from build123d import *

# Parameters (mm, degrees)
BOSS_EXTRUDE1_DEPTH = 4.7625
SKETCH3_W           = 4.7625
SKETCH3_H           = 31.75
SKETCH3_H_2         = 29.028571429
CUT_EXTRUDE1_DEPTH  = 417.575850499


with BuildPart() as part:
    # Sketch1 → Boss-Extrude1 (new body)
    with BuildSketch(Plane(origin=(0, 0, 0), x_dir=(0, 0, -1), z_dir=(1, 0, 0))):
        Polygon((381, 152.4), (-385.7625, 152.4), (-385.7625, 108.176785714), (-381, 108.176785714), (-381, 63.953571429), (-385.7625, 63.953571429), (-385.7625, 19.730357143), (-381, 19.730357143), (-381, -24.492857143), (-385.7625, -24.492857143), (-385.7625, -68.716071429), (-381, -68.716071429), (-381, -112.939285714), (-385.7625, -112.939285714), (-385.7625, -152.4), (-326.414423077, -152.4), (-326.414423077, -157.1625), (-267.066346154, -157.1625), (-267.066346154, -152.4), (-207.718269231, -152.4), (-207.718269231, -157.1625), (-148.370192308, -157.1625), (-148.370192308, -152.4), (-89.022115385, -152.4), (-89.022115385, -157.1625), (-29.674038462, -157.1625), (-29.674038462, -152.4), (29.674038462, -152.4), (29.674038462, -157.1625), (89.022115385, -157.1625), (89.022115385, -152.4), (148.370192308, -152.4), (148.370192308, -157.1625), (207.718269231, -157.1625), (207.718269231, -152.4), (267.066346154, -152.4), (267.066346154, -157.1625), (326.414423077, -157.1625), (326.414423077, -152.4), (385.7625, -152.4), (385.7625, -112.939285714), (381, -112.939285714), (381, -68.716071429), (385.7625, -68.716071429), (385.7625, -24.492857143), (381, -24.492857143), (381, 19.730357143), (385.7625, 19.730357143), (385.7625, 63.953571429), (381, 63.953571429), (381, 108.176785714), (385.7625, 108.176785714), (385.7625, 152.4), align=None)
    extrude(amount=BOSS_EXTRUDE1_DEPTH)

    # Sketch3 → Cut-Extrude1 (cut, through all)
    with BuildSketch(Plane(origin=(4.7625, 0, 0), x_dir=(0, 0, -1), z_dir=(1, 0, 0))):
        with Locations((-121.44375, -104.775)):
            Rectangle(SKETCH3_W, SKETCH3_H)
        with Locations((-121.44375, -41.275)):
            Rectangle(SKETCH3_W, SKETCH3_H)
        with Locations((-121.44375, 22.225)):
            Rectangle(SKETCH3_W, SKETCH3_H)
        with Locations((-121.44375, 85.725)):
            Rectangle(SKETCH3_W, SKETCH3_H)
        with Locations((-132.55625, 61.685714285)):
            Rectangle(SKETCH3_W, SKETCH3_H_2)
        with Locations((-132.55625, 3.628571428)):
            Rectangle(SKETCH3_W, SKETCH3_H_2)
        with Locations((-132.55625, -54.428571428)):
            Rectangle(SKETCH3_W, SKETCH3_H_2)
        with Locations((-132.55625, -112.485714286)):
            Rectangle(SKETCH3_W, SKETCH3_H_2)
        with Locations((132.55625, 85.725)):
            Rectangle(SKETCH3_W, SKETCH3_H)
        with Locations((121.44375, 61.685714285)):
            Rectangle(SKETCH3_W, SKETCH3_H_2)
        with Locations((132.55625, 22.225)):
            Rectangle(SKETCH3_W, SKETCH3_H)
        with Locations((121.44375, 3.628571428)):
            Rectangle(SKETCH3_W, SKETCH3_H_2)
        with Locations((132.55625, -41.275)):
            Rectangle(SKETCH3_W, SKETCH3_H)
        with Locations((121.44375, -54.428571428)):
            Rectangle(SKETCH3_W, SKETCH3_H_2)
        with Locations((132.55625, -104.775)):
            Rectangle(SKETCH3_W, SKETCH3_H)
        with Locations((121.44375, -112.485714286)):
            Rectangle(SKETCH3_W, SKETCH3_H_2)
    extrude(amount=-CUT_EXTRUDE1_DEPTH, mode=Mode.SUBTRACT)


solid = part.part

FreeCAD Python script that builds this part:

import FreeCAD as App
import Part
import Sketcher
Q = App.Units.Quantity

doc = App.newDocument("Part")
body = doc.addObject("PartDesign::Body", "Body")

sketch1 = body.newObject("Sketcher::SketchObject", "Sketch")
sketch1.AttachmentSupport = (doc.getObject("YZ_Plane"), [""])
sketch1.MapMode = "FlatFace"
sketch1.addGeometry(Part.LineSegment(App.Vector(152.4, 385.8, 0), App.Vector(108.2, 385.8, 0)), False)
sketch1.addGeometry(Part.LineSegment(App.Vector(108.2, 385.8, 0), App.Vector(108.2, 381, 0)), False)
sketch1.addGeometry(Part.LineSegment(App.Vector(108.2, 381, 0), App.Vector(64, 381, 0)), False)
sketch1.addGeometry(Part.LineSegment(App.Vector(64, 381, 0), App.Vector(64, 385.8, 0)), False)
sketch1.addGeometry(Part.LineSegment(App.Vector(64, 385.8, 0), App.Vector(19.7, 385.8, 0)), False)
sketch1.addGeometry(Part.LineSegment(App.Vector(19.7, 385.8, 0), App.Vector(19.7, 381, 0)), False)
sketch1.addGeometry(Part.LineSegment(App.Vector(19.7, 381, 0), App.Vector(-24.5, 381, 0)), False)
sketch1.addGeometry(Part.LineSegment(App.Vector(-24.5, 381, 0), App.Vector(-24.5, 385.8, 0)), False)
sketch1.addGeometry(Part.LineSegment(App.Vector(-24.5, 385.8, 0), App.Vector(-68.7, 385.8, 0)), False)
sketch1.addGeometry(Part.LineSegment(App.Vector(-68.7, 385.8, 0), App.Vector(-68.7, 381, 0)), False)
sketch1.addGeometry(Part.LineSegment(App.Vector(-68.7, 381, 0), App.Vector(-112.9, 381, 0)), False)
sketch1.addGeometry(Part.LineSegment(App.Vector(-112.9, 381, 0), App.Vector(-112.9, 385.8, 0)), False)
sketch1.addGeometry(Part.LineSegment(App.Vector(-112.9, 385.8, 0), App.Vector(-152.4, 385.8, 0)), False)
sketch1.addGeometry(Part.LineSegment(App.Vector(-152.4, 385.8, 0), App.Vector(-152.4, 326.4, 0)), False)
sketch1.addGeometry(Part.LineSegment(App.Vector(-152.4, 326.4, 0), App.Vector(-157.2, 326.4, 0)), False)
sketch1.addGeometry(Part.LineSegment(App.Vector(-157.2, 326.4, 0), App.Vector(-157.2, 267.1, 0)), False)
sketch1.addGeometry(Part.LineSegment(App.Vector(-157.2, 267.1, 0), App.Vector(-152.4, 267.1, 0)), False)
sketch1.addGeometry(Part.LineSegment(App.Vector(-152.4, 267.1, 0), App.Vector(-152.4, 207.7, 0)), False)
sketch1.addGeometry(Part.LineSegment(App.Vector(-152.4, 207.7, 0), App.Vector(-157.2, 207.7, 0)), False)
sketch1.addGeometry(Part.LineSegment(App.Vector(-157.2, 207.7, 0), App.Vector(-157.2, 148.4, 0)), False)
sketch1.addGeometry(Part.LineSegment(App.Vector(-157.2, 148.4, 0), App.Vector(-152.4, 148.4, 0)), False)
sketch1.addGeometry(Part.LineSegment(App.Vector(-152.4, 148.4, 0), App.Vector(-152.4, 89, 0)), False)
sketch1.addGeometry(Part.LineSegment(App.Vector(-152.4, 89, 0), App.Vector(-157.2, 89, 0)), False)
sketch1.addGeometry(Part.LineSegment(App.Vector(-157.2, 89, 0), App.Vector(-157.2, 29.7, 0)), False)
sketch1.addGeometry(Part.LineSegment(App.Vector(-157.2, 29.7, 0), App.Vector(-152.4, 29.7, 0)), False)
sketch1.addGeometry(Part.LineSegment(App.Vector(-152.4, 29.7, 0), App.Vector(-152.4, -29.7, 0)), False)
sketch1.addGeometry(Part.LineSegment(App.Vector(-152.4, -29.7, 0), App.Vector(-157.2, -29.7, 0)), False)
sketch1.addGeometry(Part.LineSegment(App.Vector(-157.2, -29.7, 0), App.Vector(-157.2, -89, 0)), False)
sketch1.addGeometry(Part.LineSegment(App.Vector(-157.2, -89, 0), App.Vector(-152.4, -89, 0)), False)
sketch1.addGeometry(Part.LineSegment(App.Vector(-152.4, -89, 0), App.Vector(-152.4, -148.4, 0)), False)
sketch1.addGeometry(Part.LineSegment(App.Vector(-152.4, -148.4, 0), App.Vector(-157.2, -148.4, 0)), False)
sketch1.addGeometry(Part.LineSegment(App.Vector(-157.2, -148.4, 0), App.Vector(-157.2, -207.7, 0)), False)
sketch1.addGeometry(Part.LineSegment(App.Vector(-157.2, -207.7, 0), App.Vector(-152.4, -207.7, 0)), False)
sketch1.addGeometry(Part.LineSegment(App.Vector(-152.4, -207.7, 0), App.Vector(-152.4, -267.1, 0)), False)
sketch1.addGeometry(Part.LineSegment(App.Vector(-152.4, -267.1, 0), App.Vector(-157.2, -267.1, 0)), False)
sketch1.addGeometry(Part.LineSegment(App.Vector(-157.2, -267.1, 0), App.Vector(-157.2, -326.4, 0)), False)
sketch1.addGeometry(Part.LineSegment(App.Vector(-157.2, -326.4, 0), App.Vector(-152.4, -326.4, 0)), False)
sketch1.addGeometry(Part.LineSegment(App.Vector(-152.4, -326.4, 0), App.Vector(-152.4, -385.8, 0)), False)
sketch1.addGeometry(Part.LineSegment(App.Vector(-152.4, -385.8, 0), App.Vector(-112.9, -385.8, 0)), False)
sketch1.addGeometry(Part.LineSegment(App.Vector(-112.9, -385.8, 0), App.Vector(-112.9, -381, 0)), False)
sketch1.addGeometry(Part.LineSegment(App.Vector(-112.9, -381, 0), App.Vector(-68.7, -381, 0)), False)
sketch1.addGeometry(Part.LineSegment(App.Vector(-68.7, -381, 0), App.Vector(-68.7, -385.8, 0)), False)
sketch1.addGeometry(Part.LineSegment(App.Vector(-68.7, -385.8, 0), App.Vector(-24.5, -385.8, 0)), False)
sketch1.addGeometry(Part.LineSegment(App.Vector(-24.5, -385.8, 0), App.Vector(-24.5, -381, 0)), False)
sketch1.addGeometry(Part.LineSegment(App.Vector(-24.5, -381, 0), App.Vector(19.7, -381, 0)), False)
sketch1.addGeometry(Part.LineSegment(App.Vector(19.7, -381, 0), App.Vector(19.7, -385.8, 0)), False)
sketch1.addGeometry(Part.LineSegment(App.Vector(19.7, -385.8, 0), App.Vector(64, -385.8, 0)), False)
sketch1.addGeometry(Part.LineSegment(App.Vector(64, -385.8, 0), App.Vector(64, -381, 0)), False)
sketch1.addGeometry(Part.LineSegment(App.Vector(64, -381, 0), App.Vector(108.2, -381, 0)), False)
sketch1.addGeometry(Part.LineSegment(App.Vector(108.2, -381, 0), App.Vector(108.2, -385.8, 0)), False)
sketch1.addGeometry(Part.LineSegment(App.Vector(108.2, -385.8, 0), App.Vector(152.4, -385.8, 0)), False)
sketch1.addGeometry(Part.LineSegment(App.Vector(152.4, -385.8, 0), App.Vector(152.4, 385.8, 0)), False)
sketch1.addConstraint(Sketcher.Constraint("Coincident", 0, 2, 1, 1))
sketch1.addConstraint(Sketcher.Constraint("Coincident", 1, 2, 2, 1))
sketch1.addConstraint(Sketcher.Constraint("Coincident", 2, 2, 3, 1))
sketch1.addConstraint(Sketcher.Constraint("Coincident", 3, 2, 4, 1))
sketch1.addConstraint(Sketcher.Constraint("Coincident", 4, 2, 5, 1))
sketch1.addConstraint(Sketcher.Constraint("Coincident", 5, 2, 6, 1))
sketch1.addConstraint(Sketcher.Constraint("Coincident", 6, 2, 7, 1))
sketch1.addConstraint(Sketcher.Constraint("Coincident", 7, 2, 8, 1))
sketch1.addConstraint(Sketcher.Constraint("Coincident", 8, 2, 9, 1))
sketch1.addConstraint(Sketcher.Constraint("Coincident", 9, 2, 10, 1))
sketch1.addConstraint(Sketcher.Constraint("Coincident", 10, 2, 11, 1))
sketch1.addConstraint(Sketcher.Constraint("Coincident", 11, 2, 12, 1))
sketch1.addConstraint(Sketcher.Constraint("Coincident", 12, 2, 13, 1))
sketch1.addConstraint(Sketcher.Constraint("Coincident", 13, 2, 14, 1))
sketch1.addConstraint(Sketcher.Constraint("Coincident", 14, 2, 15, 1))
sketch1.addConstraint(Sketcher.Constraint("Coincident", 15, 2, 16, 1))
sketch1.addConstraint(Sketcher.Constraint("Coincident", 16, 2, 17, 1))
sketch1.addConstraint(Sketcher.Constraint("Coincident", 17, 2, 18, 1))
sketch1.addConstraint(Sketcher.Constraint("Coincident", 18, 2, 19, 1))
sketch1.addConstraint(Sketcher.Constraint("Coincident", 19, 2, 20, 1))
sketch1.addConstraint(Sketcher.Constraint("Coincident", 20, 2, 21, 1))
sketch1.addConstraint(Sketcher.Constraint("Coincident", 21, 2, 22, 1))
sketch1.addConstraint(Sketcher.Constraint("Coincident", 22, 2, 23, 1))
sketch1.addConstraint(Sketcher.Constraint("Coincident", 23, 2, 24, 1))
sketch1.addConstraint(Sketcher.Constraint("Coincident", 24, 2, 25, 1))
sketch1.addConstraint(Sketcher.Constraint("Coincident", 25, 2, 26, 1))
sketch1.addConstraint(Sketcher.Constraint("Coincident", 26, 2, 27, 1))
sketch1.addConstraint(Sketcher.Constraint("Coincident", 27, 2, 28, 1))
sketch1.addConstraint(Sketcher.Constraint("Coincident", 28, 2, 29, 1))
sketch1.addConstraint(Sketcher.Constraint("Coincident", 29, 2, 30, 1))
sketch1.addConstraint(Sketcher.Constraint("Coincident", 30, 2, 31, 1))
sketch1.addConstraint(Sketcher.Constraint("Coincident", 31, 2, 32, 1))
sketch1.addConstraint(Sketcher.Constraint("Coincident", 32, 2, 33, 1))
sketch1.addConstraint(Sketcher.Constraint("Coincident", 33, 2, 34, 1))
sketch1.addConstraint(Sketcher.Constraint("Coincident", 34, 2, 35, 1))
sketch1.addConstraint(Sketcher.Constraint("Coincident", 35, 2, 36, 1))
sketch1.addConstraint(Sketcher.Constraint("Coincident", 36, 2, 37, 1))
sketch1.addConstraint(Sketcher.Constraint("Coincident", 37, 2, 38, 1))
sketch1.addConstraint(Sketcher.Constraint("Coincident", 38, 2, 39, 1))
sketch1.addConstraint(Sketcher.Constraint("Coincident", 39, 2, 40, 1))
sketch1.addConstraint(Sketcher.Constraint("Coincident", 40, 2, 41, 1))
sketch1.addConstraint(Sketcher.Constraint("Coincident", 41, 2, 42, 1))
sketch1.addConstraint(Sketcher.Constraint("Coincident", 42, 2, 43, 1))
sketch1.addConstraint(Sketcher.Constraint("Coincident", 43, 2, 44, 1))
sketch1.addConstraint(Sketcher.Constraint("Coincident", 44, 2, 45, 1))
sketch1.addConstraint(Sketcher.Constraint("Coincident", 45, 2, 46, 1))
sketch1.addConstraint(Sketcher.Constraint("Coincident", 46, 2, 47, 1))
sketch1.addConstraint(Sketcher.Constraint("Coincident", 47, 2, 48, 1))
sketch1.addConstraint(Sketcher.Constraint("Coincident", 48, 2, 49, 1))
sketch1.addConstraint(Sketcher.Constraint("Coincident", 49, 2, 50, 1))
sketch1.addConstraint(Sketcher.Constraint("Coincident", 50, 2, 51, 1))
sketch1.addConstraint(Sketcher.Constraint("Coincident", 51, 2, 0, 1))
sketch1.addConstraint(Sketcher.Constraint("Horizontal", 0))
sketch1.addConstraint(Sketcher.Constraint("Vertical", 1))
sketch1.addConstraint(Sketcher.Constraint("Horizontal", 2))
sketch1.addConstraint(Sketcher.Constraint("Vertical", 3))
sketch1.addConstraint(Sketcher.Constraint("Horizontal", 4))
sketch1.addConstraint(Sketcher.Constraint("Vertical", 5))
sketch1.addConstraint(Sketcher.Constraint("Horizontal", 6))
sketch1.addConstraint(Sketcher.Constraint("Vertical", 7))
sketch1.addConstraint(Sketcher.Constraint("Horizontal", 8))
sketch1.addConstraint(Sketcher.Constraint("Vertical", 9))
sketch1.addConstraint(Sketcher.Constraint("Horizontal", 10))
sketch1.addConstraint(Sketcher.Constraint("Vertical", 11))
sketch1.addConstraint(Sketcher.Constraint("Horizontal", 12))
sketch1.addConstraint(Sketcher.Constraint("Vertical", 13))
sketch1.addConstraint(Sketcher.Constraint("Horizontal", 14))
sketch1.addConstraint(Sketcher.Constraint("Vertical", 15))
sketch1.addConstraint(Sketcher.Constraint("Horizontal", 16))
sketch1.addConstraint(Sketcher.Constraint("Vertical", 17))
sketch1.addConstraint(Sketcher.Constraint("Horizontal", 18))
sketch1.addConstraint(Sketcher.Constraint("Vertical", 19))
sketch1.addConstraint(Sketcher.Constraint("Horizontal", 20))
sketch1.addConstraint(Sketcher.Constraint("Vertical", 21))
sketch1.addConstraint(Sketcher.Constraint("Horizontal", 22))
sketch1.addConstraint(Sketcher.Constraint("Vertical", 23))
sketch1.addConstraint(Sketcher.Constraint("Horizontal", 24))
sketch1.addConstraint(Sketcher.Constraint("Vertical", 25))
sketch1.addConstraint(Sketcher.Constraint("Horizontal", 26))
sketch1.addConstraint(Sketcher.Constraint("Vertical", 27))
sketch1.addConstraint(Sketcher.Constraint("Horizontal", 28))
sketch1.addConstraint(Sketcher.Constraint("Vertical", 29))
sketch1.addConstraint(Sketcher.Constraint("Horizontal", 30))
sketch1.addConstraint(Sketcher.Constraint("Vertical", 31))
sketch1.addConstraint(Sketcher.Constraint("Horizontal", 32))
sketch1.addConstraint(Sketcher.Constraint("Vertical", 33))
sketch1.addConstraint(Sketcher.Constraint("Horizontal", 34))
sketch1.addConstraint(Sketcher.Constraint("Vertical", 35))
sketch1.addConstraint(Sketcher.Constraint("Horizontal", 36))
sketch1.addConstraint(Sketcher.Constraint("Vertical", 37))
sketch1.addConstraint(Sketcher.Constraint("Horizontal", 38))
sketch1.addConstraint(Sketcher.Constraint("Vertical", 39))
sketch1.addConstraint(Sketcher.Constraint("Horizontal", 40))
sketch1.addConstraint(Sketcher.Constraint("Vertical", 41))
sketch1.addConstraint(Sketcher.Constraint("Horizontal", 42))
sketch1.addConstraint(Sketcher.Constraint("Vertical", 43))
sketch1.addConstraint(Sketcher.Constraint("Horizontal", 44))
sketch1.addConstraint(Sketcher.Constraint("Vertical", 45))
sketch1.addConstraint(Sketcher.Constraint("Horizontal", 46))
sketch1.addConstraint(Sketcher.Constraint("Vertical", 47))
sketch1.addConstraint(Sketcher.Constraint("Horizontal", 48))
sketch1.addConstraint(Sketcher.Constraint("Vertical", 49))
sketch1.addConstraint(Sketcher.Constraint("Horizontal", 50))
sketch1.addConstraint(Sketcher.Constraint("Vertical", 51))
sketch1.addConstraint(Sketcher.Constraint("Symmetric", 12, 2, 50, 2, -1, 1))
sketch1.addConstraint(Sketcher.Constraint("Symmetric", 37, 2, 51, 2, -1, 1))
sketch1.addConstraint(Sketcher.Constraint("Symmetric", 23, 2, 26, 2, -1))
sketch1.addConstraint(Sketcher.Constraint("Symmetric", 21, 2, 28, 2, -1))
sketch1.addConstraint(Sketcher.Constraint("Symmetric", 19, 2, 30, 2, -1))
sketch1.addConstraint(Sketcher.Constraint("Symmetric", 17, 2, 32, 2, -1))
sketch1.addConstraint(Sketcher.Constraint("Symmetric", 15, 2, 34, 2, -1))
sketch1.addConstraint(Sketcher.Constraint("Symmetric", 11, 2, 38, 2, -1))
sketch1.addConstraint(Sketcher.Constraint("Symmetric", 9, 2, 40, 2, -1))
sketch1.addConstraint(Sketcher.Constraint("Symmetric", 7, 2, 42, 2, -1))
sketch1.addConstraint(Sketcher.Constraint("Symmetric", 5, 2, 44, 2, -1))
sketch1.addConstraint(Sketcher.Constraint("Symmetric", 3, 2, 46, 2, -1))
sketch1.addConstraint(Sketcher.Constraint("Symmetric", 1, 2, 48, 2, -1))
sketch1.addConstraint(Sketcher.Constraint("Horizontal", 0, 2, 3, 2))
sketch1.addConstraint(Sketcher.Constraint("Horizontal", 2, 2, 5, 2))
sketch1.addConstraint(Sketcher.Constraint("Horizontal", 4, 2, 7, 2))
sketch1.addConstraint(Sketcher.Constraint("Horizontal", 6, 2, 9, 2))
sketch1.addConstraint(Sketcher.Constraint("Vertical", 13, 2, 16, 2))
sketch1.addConstraint(Sketcher.Constraint("Vertical", 15, 2, 18, 2))
sketch1.addConstraint(Sketcher.Constraint("Vertical", 17, 2, 20, 2))
sketch1.addConstraint(Sketcher.Constraint("Vertical", 19, 2, 22, 2))
sketch1.addConstraint(Sketcher.Constraint("Vertical", 21, 2, 24, 2))
sketch1.addConstraint(Sketcher.Constraint("Equal", 0, 2))
sketch1.addConstraint(Sketcher.Constraint("Equal", 2, 4))
sketch1.addConstraint(Sketcher.Constraint("Equal", 4, 6))
sketch1.addConstraint(Sketcher.Constraint("Equal", 6, 8))
sketch1.addConstraint(Sketcher.Constraint("Equal", 8, 10))
sketch1.addConstraint(Sketcher.Constraint("Equal", 36, 1))
sketch1.addConstraint(Sketcher.Constraint("Equal", 13, 15))
sketch1.addConstraint(Sketcher.Constraint("Equal", 15, 17))
sketch1.addConstraint(Sketcher.Constraint("Equal", 17, 19))
sketch1.addConstraint(Sketcher.Constraint("Equal", 19, 21))
sketch1.addConstraint(Sketcher.Constraint("Equal", 21, 23))
sketch1.addConstraint(Sketcher.Constraint("Equal", 23, 25))
sketch1.addConstraint(Sketcher.Constraint("Equal", 33, 35))
sketch1.addConstraint(Sketcher.Constraint("DistanceY", -1, 1, 1, 2, Q("15 in")))
sketch1.addConstraint(Sketcher.Constraint("DistanceX", 12, 2, -1, 1, Q("6 in")))
sketch1.addConstraint(Sketcher.Constraint("DistanceX", 14, 2, 14, 1, Q("0.1875 in")))
sketch1.addConstraint(Sketcher.Constraint("DistanceX", 0, 2, 0, 1, Q("44.223214 mm")))
pad1 = body.newObject("PartDesign::Pad", "Pad")
pad1.Profile = sketch1
pad1.Length = Q("0.1875 in")

sketch2 = body.newObject("Sketcher::SketchObject", "Sketch001")
sketch2.AttachmentSupport = (doc.getObject("YZ_Plane"), [""])
sketch2.MapMode = "FlatFace"
sketch2.AttachmentOffset = App.Placement(App.Vector(0, 0, 0.1875 * 25.4), App.Rotation())
sketch2.addGeometry(Part.LineSegment(App.Vector(-88.9, 123.8, 0), App.Vector(-120.7, 123.8, 0)), False)
sketch2.addGeometry(Part.LineSegment(App.Vector(-120.7, 123.8, 0), App.Vector(-120.7, 119.1, 0)), False)
sketch2.addGeometry(Part.LineSegment(App.Vector(-120.7, 119.1, 0), App.Vector(-88.9, 119.1, 0)), False)
sketch2.addGeometry(Part.LineSegment(App.Vector(-88.9, 119.1, 0), App.Vector(-88.9, 123.8, 0)), False)
sketch2.addGeometry(Part.LineSegment(App.Vector(-25.4, 123.8, 0), App.Vector(-57.1, 123.8, 0)), False)
sketch2.addGeometry(Part.LineSegment(App.Vector(-57.1, 123.8, 0), App.Vector(-57.1, 119.1, 0)), False)
sketch2.addGeometry(Part.LineSegment(App.Vector(-57.1, 119.1, 0), App.Vector(-25.4, 119.1, 0)), False)
sketch2.addGeometry(Part.LineSegment(App.Vector(-25.4, 119.1, 0), App.Vector(-25.4, 123.8, 0)), False)
sketch2.addGeometry(Part.LineSegment(App.Vector(38.1, 123.8, 0), App.Vector(6.3, 123.8, 0)), False)
sketch2.addGeometry(Part.LineSegment(App.Vector(6.3, 123.8, 0), App.Vector(6.3, 119.1, 0)), False)
sketch2.addGeometry(Part.LineSegment(App.Vector(6.3, 119.1, 0), App.Vector(38.1, 119.1, 0)), False)
sketch2.addGeometry(Part.LineSegment(App.Vector(38.1, 119.1, 0), App.Vector(38.1, 123.8, 0)), False)
sketch2.addGeometry(Part.LineSegment(App.Vector(101.6, 123.8, 0), App.Vector(69.8, 123.8, 0)), False)
sketch2.addGeometry(Part.LineSegment(App.Vector(69.8, 123.8, 0), App.Vector(69.8, 119.1, 0)), False)
sketch2.addGeometry(Part.LineSegment(App.Vector(69.8, 119.1, 0), App.Vector(101.6, 119.1, 0)), False)
sketch2.addGeometry(Part.LineSegment(App.Vector(101.6, 119.1, 0), App.Vector(101.6, 123.8, 0)), False)
sketch2.addGeometry(Part.LineSegment(App.Vector(76.2, 134.9, 0), App.Vector(47.2, 134.9, 0)), False)
sketch2.addGeometry(Part.LineSegment(App.Vector(47.2, 134.9, 0), App.Vector(47.2, 130.2, 0)), False)
sketch2.addGeometry(Part.LineSegment(App.Vector(47.2, 130.2, 0), App.Vector(76.2, 130.2, 0)), False)
sketch2.addGeometry(Part.LineSegment(App.Vector(76.2, 130.2, 0), App.Vector(76.2, 134.9, 0)), False)
sketch2.addGeometry(Part.LineSegment(App.Vector(18.1, 134.9, 0), App.Vector(-10.9, 134.9, 0)), False)
sketch2.addGeometry(Part.LineSegment(App.Vector(-10.9, 134.9, 0), App.Vector(-10.9, 130.2, 0)), False)
sketch2.addGeometry(Part.LineSegment(App.Vector(-10.9, 130.2, 0), App.Vector(18.1, 130.2, 0)), False)
sketch2.addGeometry(Part.LineSegment(App.Vector(18.1, 130.2, 0), App.Vector(18.1, 134.9, 0)), False)
sketch2.addGeometry(Part.LineSegment(App.Vector(-39.9, 134.9, 0), App.Vector(-68.9, 134.9, 0)), False)
sketch2.addGeometry(Part.LineSegment(App.Vector(-68.9, 134.9, 0), App.Vector(-68.9, 130.2, 0)), False)
sketch2.addGeometry(Part.LineSegment(App.Vector(-68.9, 130.2, 0), App.Vector(-39.9, 130.2, 0)), False)
sketch2.addGeometry(Part.LineSegment(App.Vector(-39.9, 130.2, 0), App.Vector(-39.9, 134.9, 0)), False)
sketch2.addGeometry(Part.LineSegment(App.Vector(-98, 134.9, 0), App.Vector(-127, 134.9, 0)), False)
sketch2.addGeometry(Part.LineSegment(App.Vector(-127, 134.9, 0), App.Vector(-127, 130.2, 0)), False)
sketch2.addGeometry(Part.LineSegment(App.Vector(-127, 130.2, 0), App.Vector(-98, 130.2, 0)), False)
sketch2.addGeometry(Part.LineSegment(App.Vector(-98, 130.2, 0), App.Vector(-98, 134.9, 0)), False)
sketch2.addGeometry(Part.LineSegment(App.Vector(101.6, -130.2, 0), App.Vector(69.8, -130.2, 0)), False)
sketch2.addGeometry(Part.LineSegment(App.Vector(69.8, -130.2, 0), App.Vector(69.8, -134.9, 0)), False)
sketch2.addGeometry(Part.LineSegment(App.Vector(69.8, -134.9, 0), App.Vector(101.6, -134.9, 0)), False)
sketch2.addGeometry(Part.LineSegment(App.Vector(101.6, -134.9, 0), App.Vector(101.6, -130.2, 0)), False)
sketch2.addGeometry(Part.LineSegment(App.Vector(76.2, -119.1, 0), App.Vector(47.2, -119.1, 0)), False)
sketch2.addGeometry(Part.LineSegment(App.Vector(47.2, -119.1, 0), App.Vector(47.2, -123.8, 0)), False)
sketch2.addGeometry(Part.LineSegment(App.Vector(47.2, -123.8, 0), App.Vector(76.2, -123.8, 0)), False)
sketch2.addGeometry(Part.LineSegment(App.Vector(76.2, -123.8, 0), App.Vector(76.2, -119.1, 0)), False)
sketch2.addGeometry(Part.LineSegment(App.Vector(38.1, -130.2, 0), App.Vector(6.3, -130.2, 0)), False)
sketch2.addGeometry(Part.LineSegment(App.Vector(6.3, -130.2, 0), App.Vector(6.3, -134.9, 0)), False)
sketch2.addGeometry(Part.LineSegment(App.Vector(6.3, -134.9, 0), App.Vector(38.1, -134.9, 0)), False)
sketch2.addGeometry(Part.LineSegment(App.Vector(38.1, -134.9, 0), App.Vector(38.1, -130.2, 0)), False)
sketch2.addGeometry(Part.LineSegment(App.Vector(18.1, -119.1, 0), App.Vector(-10.9, -119.1, 0)), False)
sketch2.addGeometry(Part.LineSegment(App.Vector(-10.9, -119.1, 0), App.Vector(-10.9, -123.8, 0)), False)
sketch2.addGeometry(Part.LineSegment(App.Vector(-10.9, -123.8, 0), App.Vector(18.1, -123.8, 0)), False)
sketch2.addGeometry(Part.LineSegment(App.Vector(18.1, -123.8, 0), App.Vector(18.1, -119.1, 0)), False)
sketch2.addGeometry(Part.LineSegment(App.Vector(-25.4, -130.2, 0), App.Vector(-57.1, -130.2, 0)), False)
sketch2.addGeometry(Part.LineSegment(App.Vector(-57.1, -130.2, 0), App.Vector(-57.1, -134.9, 0)), False)
sketch2.addGeometry(Part.LineSegment(App.Vector(-57.1, -134.9, 0), App.Vector(-25.4, -134.9, 0)), False)
sketch2.addGeometry(Part.LineSegment(App.Vector(-25.4, -134.9, 0), App.Vector(-25.4, -130.2, 0)), False)
sketch2.addGeometry(Part.LineSegment(App.Vector(-39.9, -119.1, 0), App.Vector(-68.9, -119.1, 0)), False)
sketch2.addGeometry(Part.LineSegment(App.Vector(-68.9, -119.1, 0), App.Vector(-68.9, -123.8, 0)), False)
sketch2.addGeometry(Part.LineSegment(App.Vector(-68.9, -123.8, 0), App.Vector(-39.9, -123.8, 0)), False)
sketch2.addGeometry(Part.LineSegment(App.Vector(-39.9, -123.8, 0), App.Vector(-39.9, -119.1, 0)), False)
sketch2.addGeometry(Part.LineSegment(App.Vector(-88.9, -130.2, 0), App.Vector(-120.7, -130.2, 0)), False)
sketch2.addGeometry(Part.LineSegment(App.Vector(-120.7, -130.2, 0), App.Vector(-120.7, -134.9, 0)), False)
sketch2.addGeometry(Part.LineSegment(App.Vector(-120.7, -134.9, 0), App.Vector(-88.9, -134.9, 0)), False)
sketch2.addGeometry(Part.LineSegment(App.Vector(-88.9, -134.9, 0), App.Vector(-88.9, -130.2, 0)), False)
sketch2.addGeometry(Part.LineSegment(App.Vector(-98, -119.1, 0), App.Vector(-127, -119.1, 0)), False)
sketch2.addGeometry(Part.LineSegment(App.Vector(-127, -119.1, 0), App.Vector(-127, -123.8, 0)), False)
sketch2.addGeometry(Part.LineSegment(App.Vector(-127, -123.8, 0), App.Vector(-98, -123.8, 0)), False)
sketch2.addGeometry(Part.LineSegment(App.Vector(-98, -123.8, 0), App.Vector(-98, -119.1, 0)), False)
sketch2.addConstraint(Sketcher.Constraint("Coincident", 0, 2, 1, 1))
sketch2.addConstraint(Sketcher.Constraint("Coincident", 1, 2, 2, 1))
sketch2.addConstraint(Sketcher.Constraint("Coincident", 2, 2, 3, 1))
sketch2.addConstraint(Sketcher.Constraint("Coincident", 3, 2, 0, 1))
sketch2.addConstraint(Sketcher.Constraint("Coincident", 4, 2, 5, 1))
sketch2.addConstraint(Sketcher.Constraint("Coincident", 5, 2, 6, 1))
sketch2.addConstraint(Sketcher.Constraint("Coincident", 6, 2, 7, 1))
sketch2.addConstraint(Sketcher.Constraint("Coincident", 7, 2, 4, 1))
sketch2.addConstraint(Sketcher.Constraint("Coincident", 8, 2, 9, 1))
sketch2.addConstraint(Sketcher.Constraint("Coincident", 9, 2, 10, 1))
sketch2.addConstraint(Sketcher.Constraint("Coincident", 10, 2, 11, 1))
sketch2.addConstraint(Sketcher.Constraint("Coincident", 11, 2, 8, 1))
sketch2.addConstraint(Sketcher.Constraint("Coincident", 12, 2, 13, 1))
sketch2.addConstraint(Sketcher.Constraint("Coincident", 13, 2, 14, 1))
sketch2.addConstraint(Sketcher.Constraint("Coincident", 14, 2, 15, 1))
sketch2.addConstraint(Sketcher.Constraint("Coincident", 15, 2, 12, 1))
sketch2.addConstraint(Sketcher.Constraint("Coincident", 16, 2, 17, 1))
sketch2.addConstraint(Sketcher.Constraint("Coincident", 17, 2, 18, 1))
sketch2.addConstraint(Sketcher.Constraint("Coincident", 18, 2, 19, 1))
sketch2.addConstraint(Sketcher.Constraint("Coincident", 19, 2, 16, 1))
sketch2.addConstraint(Sketcher.Constraint("Coincident", 20, 2, 21, 1))
sketch2.addConstraint(Sketcher.Constraint("Coincident", 21, 2, 22, 1))
sketch2.addConstraint(Sketcher.Constraint("Coincident", 22, 2, 23, 1))
sketch2.addConstraint(Sketcher.Constraint("Coincident", 23, 2, 20, 1))
sketch2.addConstraint(Sketcher.Constraint("Coincident", 24, 2, 25, 1))
sketch2.addConstraint(Sketcher.Constraint("Coincident", 25, 2, 26, 1))
sketch2.addConstraint(Sketcher.Constraint("Coincident", 26, 2, 27, 1))
sketch2.addConstraint(Sketcher.Constraint("Coincident", 27, 2, 24, 1))
sketch2.addConstraint(Sketcher.Constraint("Coincident", 28, 2, 29, 1))
sketch2.addConstraint(Sketcher.Constraint("Coincident", 29, 2, 30, 1))
sketch2.addConstraint(Sketcher.Constraint("Coincident", 30, 2, 31, 1))
sketch2.addConstraint(Sketcher.Constraint("Coincident", 31, 2, 28, 1))
sketch2.addConstraint(Sketcher.Constraint("Coincident", 32, 2, 33, 1))
sketch2.addConstraint(Sketcher.Constraint("Coincident", 33, 2, 34, 1))
sketch2.addConstraint(Sketcher.Constraint("Coincident", 34, 2, 35, 1))
sketch2.addConstraint(Sketcher.Constraint("Coincident", 35, 2, 32, 1))
sketch2.addConstraint(Sketcher.Constraint("Coincident", 36, 2, 37, 1))
sketch2.addConstraint(Sketcher.Constraint("Coincident", 37, 2, 38, 1))
sketch2.addConstraint(Sketcher.Constraint("Coincident", 38, 2, 39, 1))
sketch2.addConstraint(Sketcher.Constraint("Coincident", 39, 2, 36, 1))
sketch2.addConstraint(Sketcher.Constraint("Coincident", 40, 2, 41, 1))
sketch2.addConstraint(Sketcher.Constraint("Coincident", 41, 2, 42, 1))
sketch2.addConstraint(Sketcher.Constraint("Coincident", 42, 2, 43, 1))
sketch2.addConstraint(Sketcher.Constraint("Coincident", 43, 2, 40, 1))
sketch2.addConstraint(Sketcher.Constraint("Coincident", 44, 2, 45, 1))
sketch2.addConstraint(Sketcher.Constraint("Coincident", 45, 2, 46, 1))
sketch2.addConstraint(Sketcher.Constraint("Coincident", 46, 2, 47, 1))
sketch2.addConstraint(Sketcher.Constraint("Coincident", 47, 2, 44, 1))
sketch2.addConstraint(Sketcher.Constraint("Coincident", 48, 2, 49, 1))
sketch2.addConstraint(Sketcher.Constraint("Coincident", 49, 2, 50, 1))
sketch2.addConstraint(Sketcher.Constraint("Coincident", 50, 2, 51, 1))
sketch2.addConstraint(Sketcher.Constraint("Coincident", 51, 2, 48, 1))
sketch2.addConstraint(Sketcher.Constraint("Coincident", 52, 2, 53, 1))
sketch2.addConstraint(Sketcher.Constraint("Coincident", 53, 2, 54, 1))
sketch2.addConstraint(Sketcher.Constraint("Coincident", 54, 2, 55, 1))
sketch2.addConstraint(Sketcher.Constraint("Coincident", 55, 2, 52, 1))
sketch2.addConstraint(Sketcher.Constraint("Coincident", 56, 2, 57, 1))
sketch2.addConstraint(Sketcher.Constraint("Coincident", 57, 2, 58, 1))
sketch2.addConstraint(Sketcher.Constraint("Coincident", 58, 2, 59, 1))
sketch2.addConstraint(Sketcher.Constraint("Coincident", 59, 2, 56, 1))
sketch2.addConstraint(Sketcher.Constraint("Coincident", 60, 2, 61, 1))
sketch2.addConstraint(Sketcher.Constraint("Coincident", 61, 2, 62, 1))
sketch2.addConstraint(Sketcher.Constraint("Coincident", 62, 2, 63, 1))
sketch2.addConstraint(Sketcher.Constraint("Coincident", 63, 2, 60, 1))
sketch2.addConstraint(Sketcher.Constraint("Horizontal", 0))
sketch2.addConstraint(Sketcher.Constraint("Vertical", 1))
sketch2.addConstraint(Sketcher.Constraint("Horizontal", 2))
sketch2.addConstraint(Sketcher.Constraint("Vertical", 3))
sketch2.addConstraint(Sketcher.Constraint("Horizontal", 4))
sketch2.addConstraint(Sketcher.Constraint("Vertical", 5))
sketch2.addConstraint(Sketcher.Constraint("Horizontal", 6))
sketch2.addConstraint(Sketcher.Constraint("Vertical", 7))
sketch2.addConstraint(Sketcher.Constraint("Horizontal", 8))
sketch2.addConstraint(Sketcher.Constraint("Vertical", 9))
sketch2.addConstraint(Sketcher.Constraint("Horizontal", 10))
sketch2.addConstraint(Sketcher.Constraint("Vertical", 11))
sketch2.addConstraint(Sketcher.Constraint("Horizontal", 12))
sketch2.addConstraint(Sketcher.Constraint("Vertical", 13))
sketch2.addConstraint(Sketcher.Constraint("Horizontal", 14))
sketch2.addConstraint(Sketcher.Constraint("Vertical", 15))
sketch2.addConstraint(Sketcher.Constraint("Horizontal", 16))
sketch2.addConstraint(Sketcher.Constraint("Vertical", 17))
sketch2.addConstraint(Sketcher.Constraint("Horizontal", 18))
sketch2.addConstraint(Sketcher.Constraint("Vertical", 19))
sketch2.addConstraint(Sketcher.Constraint("Horizontal", 20))
sketch2.addConstraint(Sketcher.Constraint("Vertical", 21))
sketch2.addConstraint(Sketcher.Constraint("Horizontal", 22))
sketch2.addConstraint(Sketcher.Constraint("Vertical", 23))
sketch2.addConstraint(Sketcher.Constraint("Horizontal", 24))
sketch2.addConstraint(Sketcher.Constraint("Vertical", 25))
sketch2.addConstraint(Sketcher.Constraint("Horizontal", 26))
sketch2.addConstraint(Sketcher.Constraint("Vertical", 27))
sketch2.addConstraint(Sketcher.Constraint("Horizontal", 28))
sketch2.addConstraint(Sketcher.Constraint("Vertical", 29))
sketch2.addConstraint(Sketcher.Constraint("Horizontal", 30))
sketch2.addConstraint(Sketcher.Constraint("Vertical", 31))
sketch2.addConstraint(Sketcher.Constraint("Horizontal", 32))
sketch2.addConstraint(Sketcher.Constraint("Vertical", 33))
sketch2.addConstraint(Sketcher.Constraint("Horizontal", 34))
sketch2.addConstraint(Sketcher.Constraint("Vertical", 35))
sketch2.addConstraint(Sketcher.Constraint("Horizontal", 36))
sketch2.addConstraint(Sketcher.Constraint("Vertical", 37))
sketch2.addConstraint(Sketcher.Constraint("Horizontal", 38))
sketch2.addConstraint(Sketcher.Constraint("Vertical", 39))
sketch2.addConstraint(Sketcher.Constraint("Horizontal", 40))
sketch2.addConstraint(Sketcher.Constraint("Vertical", 41))
sketch2.addConstraint(Sketcher.Constraint("Horizontal", 42))
sketch2.addConstraint(Sketcher.Constraint("Vertical", 43))
sketch2.addConstraint(Sketcher.Constraint("Horizontal", 44))
sketch2.addConstraint(Sketcher.Constraint("Vertical", 45))
sketch2.addConstraint(Sketcher.Constraint("Horizontal", 46))
sketch2.addConstraint(Sketcher.Constraint("Vertical", 47))
sketch2.addConstraint(Sketcher.Constraint("Horizontal", 48))
sketch2.addConstraint(Sketcher.Constraint("Vertical", 49))
sketch2.addConstraint(Sketcher.Constraint("Horizontal", 50))
sketch2.addConstraint(Sketcher.Constraint("Vertical", 51))
sketch2.addConstraint(Sketcher.Constraint("Horizontal", 52))
sketch2.addConstraint(Sketcher.Constraint("Vertical", 53))
sketch2.addConstraint(Sketcher.Constraint("Horizontal", 54))
sketch2.addConstraint(Sketcher.Constraint("Vertical", 55))
sketch2.addConstraint(Sketcher.Constraint("Horizontal", 56))
sketch2.addConstraint(Sketcher.Constraint("Vertical", 57))
sketch2.addConstraint(Sketcher.Constraint("Horizontal", 58))
sketch2.addConstraint(Sketcher.Constraint("Vertical", 59))
sketch2.addConstraint(Sketcher.Constraint("Horizontal", 60))
sketch2.addConstraint(Sketcher.Constraint("Vertical", 61))
sketch2.addConstraint(Sketcher.Constraint("Horizontal", 62))
sketch2.addConstraint(Sketcher.Constraint("Vertical", 63))
sketch2.addConstraint(Sketcher.Constraint("Horizontal", 3, 2, 4, 2))
sketch2.addConstraint(Sketcher.Constraint("Horizontal", 2, 2, 5, 2))
sketch2.addConstraint(Sketcher.Constraint("Horizontal", 7, 2, 8, 2))
sketch2.addConstraint(Sketcher.Constraint("Horizontal", 6, 2, 9, 2))
sketch2.addConstraint(Sketcher.Constraint("Horizontal", 11, 2, 12, 2))
sketch2.addConstraint(Sketcher.Constraint("Horizontal", 10, 2, 13, 2))
sketch2.addConstraint(Sketcher.Constraint("Horizontal", 19, 2, 20, 2))
sketch2.addConstraint(Sketcher.Constraint("Horizontal", 18, 2, 21, 2))
sketch2.addConstraint(Sketcher.Constraint("Horizontal", 23, 2, 24, 2))
sketch2.addConstraint(Sketcher.Constraint("Horizontal", 22, 2, 25, 2))
sketch2.addConstraint(Sketcher.Constraint("Horizontal", 27, 2, 28, 2))
sketch2.addConstraint(Sketcher.Constraint("Horizontal", 26, 2, 29, 2))
sketch2.addConstraint(Sketcher.Constraint("Horizontal", 35, 2, 40, 2))
sketch2.addConstraint(Sketcher.Constraint("Horizontal", 34, 2, 41, 2))
sketch2.addConstraint(Sketcher.Constraint("Horizontal", 39, 2, 44, 2))
sketch2.addConstraint(Sketcher.Constraint("Horizontal", 38, 2, 45, 2))
sketch2.addConstraint(Sketcher.Constraint("Horizontal", 43, 2, 48, 2))
sketch2.addConstraint(Sketcher.Constraint("Horizontal", 42, 2, 49, 2))
sketch2.addConstraint(Sketcher.Constraint("Horizontal", 47, 2, 52, 2))
sketch2.addConstraint(Sketcher.Constraint("Horizontal", 46, 2, 53, 2))
sketch2.addConstraint(Sketcher.Constraint("Horizontal", 51, 2, 56, 2))
sketch2.addConstraint(Sketcher.Constraint("Horizontal", 50, 2, 57, 2))
sketch2.addConstraint(Sketcher.Constraint("Horizontal", 55, 2, 60, 2))
sketch2.addConstraint(Sketcher.Constraint("Horizontal", 54, 2, 61, 2))
sketch2.addConstraint(Sketcher.Constraint("Vertical", 13, 2, 32, 2))
sketch2.addConstraint(Sketcher.Constraint("Vertical", 15, 2, 34, 2))
sketch2.addConstraint(Sketcher.Constraint("Vertical", 17, 2, 36, 2))
sketch2.addConstraint(Sketcher.Constraint("Vertical", 19, 2, 38, 2))
sketch2.addConstraint(Sketcher.Constraint("Vertical", 9, 2, 40, 2))
sketch2.addConstraint(Sketcher.Constraint("Vertical", 11, 2, 42, 2))
sketch2.addConstraint(Sketcher.Constraint("Vertical", 21, 2, 44, 2))
sketch2.addConstraint(Sketcher.Constraint("Vertical", 23, 2, 46, 2))
sketch2.addConstraint(Sketcher.Constraint("Vertical", 5, 2, 48, 2))
sketch2.addConstraint(Sketcher.Constraint("Vertical", 7, 2, 50, 2))
sketch2.addConstraint(Sketcher.Constraint("Vertical", 25, 2, 52, 2))
sketch2.addConstraint(Sketcher.Constraint("Vertical", 27, 2, 54, 2))
sketch2.addConstraint(Sketcher.Constraint("Vertical", 1, 2, 56, 2))
sketch2.addConstraint(Sketcher.Constraint("Vertical", 3, 2, 58, 2))
sketch2.addConstraint(Sketcher.Constraint("Vertical", 29, 2, 60, 2))
sketch2.addConstraint(Sketcher.Constraint("Vertical", 31, 2, 62, 2))
sketch2.addConstraint(Sketcher.Constraint("Equal", 2, 4))
sketch2.addConstraint(Sketcher.Constraint("Equal", 6, 8))
sketch2.addConstraint(Sketcher.Constraint("Equal", 10, 12))
sketch2.addConstraint(Sketcher.Constraint("Equal", 18, 20))
sketch2.addConstraint(Sketcher.Constraint("Equal", 22, 24))
sketch2.addConstraint(Sketcher.Constraint("Equal", 26, 28))
sketch2.addConstraint(Sketcher.Constraint("Equal", 15, 17))
sketch2.addConstraint(Sketcher.Constraint("Equal", 31, 33))
sketch2.addConstraint(Sketcher.Constraint("Equal", 35, 37))
sketch2.addConstraint(Sketcher.Constraint("DistanceX", 6, 2, -1, 1, Q("1 in")))
sketch2.addConstraint(Sketcher.Constraint("DistanceX", -1, 1, 14, 2, Q("4 in")))
sketch2.addConstraint(Sketcher.Constraint("DistanceX", -1, 1, 18, 2, Q("3 in")))
sketch2.addConstraint(Sketcher.Constraint("DistanceX", 28, 2, -1, 1, Q("5 in")))
sketch2.addConstraint(Sketcher.Constraint("DistanceX", 0, 2, 0, 1, Q("1.25 in")))
sketch2.addConstraint(Sketcher.Constraint("DistanceX", 2, 2, -1, 1, Q("3.5 in")))
sketch2.addConstraint(Sketcher.Constraint("DistanceX", -1, 1, 10, 2, Q("1.5 in")))
sketch2.addConstraint(Sketcher.Constraint("DistanceY", 1, 2, 1, 1, Q("0.1875 in")))
sketch2.addConstraint(Sketcher.Constraint("DistanceY", -1, 1, 0, 2, Q("4.875 in")))
sketch2.addConstraint(Sketcher.Constraint("DistanceY", -1, 1, 16, 2, Q("5.3125 in")))
sketch2.addConstraint(Sketcher.Constraint("DistanceY", 32, 2, -1, 1, Q("5.125 in")))
sketch2.addConstraint(Sketcher.Constraint("DistanceY", 36, 2, -1, 1, Q("4.6875 in")))
sketch2.addConstraint(Sketcher.Constraint("DistanceX", 16, 2, 16, 1, Q("29.028571 mm")))
sketch2.addConstraint(Sketcher.Constraint("DistanceX", 20, 2, -1, 1, Q("10.885714 mm")))
sketch2.addConstraint(Sketcher.Constraint("DistanceX", 24, 2, -1, 1, Q("68.942857 mm")))
pocket1 = body.newObject("PartDesign::Pocket", "Pocket")
pocket1.Profile = sketch2
pocket1.Type = "ThroughAll"

doc.recompute()
